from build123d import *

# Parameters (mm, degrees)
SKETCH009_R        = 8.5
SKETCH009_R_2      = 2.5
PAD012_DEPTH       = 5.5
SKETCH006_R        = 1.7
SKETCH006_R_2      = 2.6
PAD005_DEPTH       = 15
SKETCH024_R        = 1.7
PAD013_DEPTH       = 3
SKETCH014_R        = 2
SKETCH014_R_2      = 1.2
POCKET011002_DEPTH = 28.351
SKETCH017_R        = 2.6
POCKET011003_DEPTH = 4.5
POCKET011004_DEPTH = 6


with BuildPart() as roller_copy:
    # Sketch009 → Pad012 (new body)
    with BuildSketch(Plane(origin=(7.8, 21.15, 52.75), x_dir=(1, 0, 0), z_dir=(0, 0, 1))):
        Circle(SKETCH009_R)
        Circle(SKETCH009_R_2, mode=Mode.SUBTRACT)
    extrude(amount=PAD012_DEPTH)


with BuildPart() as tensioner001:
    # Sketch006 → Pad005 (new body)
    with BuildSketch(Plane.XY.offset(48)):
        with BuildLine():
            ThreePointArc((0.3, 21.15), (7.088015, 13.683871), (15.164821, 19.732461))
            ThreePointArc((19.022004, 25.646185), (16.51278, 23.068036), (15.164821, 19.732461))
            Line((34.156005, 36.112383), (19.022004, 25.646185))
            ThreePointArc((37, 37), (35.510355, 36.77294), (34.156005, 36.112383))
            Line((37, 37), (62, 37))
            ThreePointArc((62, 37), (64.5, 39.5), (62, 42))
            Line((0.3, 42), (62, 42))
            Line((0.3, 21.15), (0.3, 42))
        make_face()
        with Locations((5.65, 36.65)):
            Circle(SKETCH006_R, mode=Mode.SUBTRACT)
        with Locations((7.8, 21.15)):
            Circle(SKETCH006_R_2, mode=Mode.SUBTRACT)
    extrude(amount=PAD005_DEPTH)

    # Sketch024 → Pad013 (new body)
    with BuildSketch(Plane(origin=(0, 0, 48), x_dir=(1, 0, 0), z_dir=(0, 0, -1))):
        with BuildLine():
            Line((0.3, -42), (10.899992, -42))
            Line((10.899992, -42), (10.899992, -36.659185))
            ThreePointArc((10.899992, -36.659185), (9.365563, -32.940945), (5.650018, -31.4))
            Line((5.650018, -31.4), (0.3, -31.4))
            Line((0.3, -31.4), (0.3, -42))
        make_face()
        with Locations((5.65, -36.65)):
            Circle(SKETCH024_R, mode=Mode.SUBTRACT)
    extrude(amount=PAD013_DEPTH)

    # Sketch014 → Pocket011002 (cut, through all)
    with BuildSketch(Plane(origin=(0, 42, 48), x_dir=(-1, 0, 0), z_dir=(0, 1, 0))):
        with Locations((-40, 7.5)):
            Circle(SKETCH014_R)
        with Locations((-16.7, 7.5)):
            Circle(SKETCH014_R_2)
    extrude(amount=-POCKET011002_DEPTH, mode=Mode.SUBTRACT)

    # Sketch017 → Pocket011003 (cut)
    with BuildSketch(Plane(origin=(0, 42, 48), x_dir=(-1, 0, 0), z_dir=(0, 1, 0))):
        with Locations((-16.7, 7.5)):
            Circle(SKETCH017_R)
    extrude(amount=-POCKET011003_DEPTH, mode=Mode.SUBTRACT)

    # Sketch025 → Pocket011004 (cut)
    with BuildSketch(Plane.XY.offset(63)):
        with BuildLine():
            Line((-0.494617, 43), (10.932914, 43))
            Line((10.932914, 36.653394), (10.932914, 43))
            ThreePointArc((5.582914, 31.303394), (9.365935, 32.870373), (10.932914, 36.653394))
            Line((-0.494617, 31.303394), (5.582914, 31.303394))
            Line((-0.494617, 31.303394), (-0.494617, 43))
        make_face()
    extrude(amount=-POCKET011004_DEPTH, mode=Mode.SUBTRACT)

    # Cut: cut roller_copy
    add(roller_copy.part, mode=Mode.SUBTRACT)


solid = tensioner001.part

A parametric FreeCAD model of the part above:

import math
import FreeCAD as App
import Part
import Sketcher
Q = App.Units.Quantity

doc = App.newDocument("Part")
body = doc.addObject("PartDesign::Body", "Body")

# Sketch on XY plane
sketch1 = body.newObject("Sketcher::SketchObject", "Sketch")
sketch1.AttachmentSupport = (doc.getObject("XY_Plane"), [""])
sketch1.MapMode = "FlatFace"
sketch1.AttachmentOffset = App.Placement(App.Vector(0, 0, 52.75), App.Rotation())
sketch1.addGeometry([
    Part.Circle(App.Vector(7.8, 21.15, 0), App.Vector(0, 0, 1), 8.5),
    Part.Circle(App.Vector(7.8, 21.15, 0), App.Vector(0, 0, 1), 2.5),
], False)
sketch1.addConstraint([
    Sketcher.Constraint("Coincident", 1, 3, 0, 3),
    Sketcher.Constraint("Diameter", 0, Q("17 mm")),
    Sketcher.Constraint("Diameter", 1, Q("5 mm")),
    Sketcher.Constraint("DistanceX", -1, 1, 0, 3, Q("7.8 mm")),
    Sketcher.Constraint("DistanceY", -1, 1, 0, 3, Q("21.15 mm")),
])
pad1 = body.newObject("PartDesign::Pad", "Pad")
pad1.Profile = sketch1
pad1.Length = 5.5
body2 = doc.addObject("PartDesign::Body", "Body001")

# Sketch on XY plane
sketch2 = body2.newObject("Sketcher::SketchObject", "Sketch001")
sketch2.AttachmentSupport = (doc.getObject("XY_Plane001"), [""])
sketch2.MapMode = "FlatFace"
sketch2.AttachmentOffset = App.Placement(App.Vector(0, 0, 48), App.Rotation())
sketch2.addGeometry([
    Part.ArcOfCircle(Part.Circle(App.Vector(7.8, 21.15, 0), App.Vector(0, 0, 1), 7.5), math.radians(179.999999), math.radians(349.105267)),  # 0
    Part.ArcOfCircle(Part.Circle(App.Vector(24.331985, 17.968017, 0), App.Vector(0, 0, 1), 9.335425), math.radians(124.666524), math.radians(169.105267)),  # 1
    Part.LineSegment(App.Vector(19.022004, 25.646185, 0), App.Vector(34.156005, 36.112383, 0)),  # 2
    Part.ArcOfCircle(Part.Circle(App.Vector(37.000001, 31.999995, 0), App.Vector(0, 0, 1), 5.000005), math.radians(90.000014), math.radians(124.666498)),  # 3
    Part.LineSegment(App.Vector(37, 37, 0), App.Vector(62, 37, 0)),  # 4
    Part.ArcOfCircle(Part.Circle(App.Vector(62, 39.5, 0), App.Vector(0, 0, 1), 2.5), math.radians(-90), math.radians(90)),  # 5
    Part.LineSegment(App.Vector(62, 42, 0), App.Vector(0.3, 42, 0)),  # 6
    Part.LineSegment(App.Vector(0.3, 42, 0), App.Vector(0.3, 21.15, 0)),  # 7
    Part.Circle(App.Vector(7.8, 21.15, 0), App.Vector(0, 0, 1), 2.6),  # 8
    Part.Circle(App.Vector(5.65, 36.65, 0), App.Vector(0, 0, 1), 1.7),  # 9
], False)
sketch2.addConstraint([
    Sketcher.Constraint("Tangent", 0, 2, 1, 2),
    Sketcher.Constraint("Tangent", 1, 1, 2, 1),
    Sketcher.Constraint("Tangent", 2, 2, 3, 2),
    Sketcher.Constraint("Tangent", 3, 1, 4, 1),
    Sketcher.Constraint("Tangent", 4, 2, 5, 1),
    Sketcher.Constraint("Tangent", 5, 2, 6, 1),
    Sketcher.Constraint("Coincident", 6, 2, 7, 1),
    Sketcher.Constraint("Tangent", 7, 2, 0, 1),
    Sketcher.Constraint("Horizontal", 4),
    Sketcher.Constraint("Horizontal", 6),
    Sketcher.Constraint("Vertical", 7),
    Sketcher.Constraint("Coincident", 8, 3, 0, 3),
    Sketcher.Constraint("Diameter", 8, Q("5.2 mm")),
    Sketcher.Constraint("Diameter", 9, Q("3.4 mm")),
    Sketcher.Constraint("Radius", 0, Q("7.5 mm")),
    Sketcher.Constraint("Radius", 5, Q("2.5 mm")),
    Sketcher.Constraint("DistanceX", 4, 1, 4, 2, Q("25 mm")),
    Sketcher.Constraint("DistanceX", 6, 2, 6, 1, Q("61.7 mm")),
    Sketcher.Constraint("DistanceX", -1, 1, 3, 3, Q("37.000001 mm")),
    Sketcher.Constraint("DistanceY", -1, 1, 3, 1, Q("37 mm")),
    Sketcher.Constraint("DistanceY", 7, 2, 7, 1, Q("20.85 mm")),
    Sketcher.Constraint("DistanceY", 8, 3, 9, 3, Q("15.5 mm")),
    Sketcher.Constraint("DistanceX", -1, 1, 9, 3, Q("5.65 mm")),
    Sketcher.Constraint("Radius", 1, Q("9.335425 mm")),
    Sketcher.Constraint("Radius", 3, Q("5.000005 mm")),
    Sketcher.Constraint("DistanceX", 1, 1, 2, 2, Q("15.134001 mm")),
])
pad2 = body2.newObject("PartDesign::Pad", "Pad001")
pad2.Profile = sketch2
pad2.Length = 15

# Sketch on XY plane
sketch3 = body2.newObject("Sketcher::SketchObject", "Sketch002")
sketch3.AttachmentSupport = (doc.getObject("XY_Plane001"), [""])
sketch3.MapMode = "FlatFace"
sketch3.AttachmentOffset = App.Placement(App.Vector(0, 0, 48), App.Rotation())
sketch3.addGeometry([
    Part.LineSegment(App.Vector(0.3, 42, 0), App.Vector(10.899992, 42, 0)),  # 0
    Part.LineSegment(App.Vector(10.899992, 42, 0), App.Vector(10.899992, 36.659185, 0)),  # 1
    Part.ArcOfCircle(Part.Circle(App.Vector(5.649999, 36.650001, 0), App.Vector(0, 0, 1), 5.250001), math.radians(-89.999797), math.radians(0.100233)),  # 2
    Part.LineSegment(App.Vector(5.650018, 31.4, 0), App.Vector(0.3, 31.4, 0)),  # 3
    Part.LineSegment(App.Vector(0.3, 31.4, 0), App.Vector(0.3, 42, 0)),  # 4
    Part.Circle(App.Vector(5.65, 36.65, 0), App.Vector(0, 0, 1), 1.7),  # 5
], False)
sketch3.addConstraint([
    Sketcher.Constraint("Coincident", 0, 2, 1, 1),
    Sketcher.Constraint("Coincident", 1, 2, 2, 2),
    Sketcher.Constraint("Coincident", 2, 1, 3, 1),
    Sketcher.Constraint("Coincident", 3, 2, 4, 1),
    Sketcher.Constraint("Coincident", 4, 2, 0, 1),
    Sketcher.Constraint("Horizontal", 0),
    Sketcher.Constraint("Vertical", 1),
    Sketcher.Constraint("Horizontal", 3),
    Sketcher.Constraint("Vertical", 4),
    Sketcher.Constraint("Coincident", 5, 3, 2, 3),
    Sketcher.Constraint("Diameter", 5, Q("3.4 mm")),
    Sketcher.Constraint("Radius", 2, Q("5.250001 mm")),
    Sketcher.Constraint("DistanceY", 4, 1, 4, 2, Q("10.6 mm")),
    Sketcher.Constraint("DistanceY", -1, 1, 0, 2, Q("42 mm")),
    Sketcher.Constraint("DistanceX", -1, 1, 3, 2, Q("0.3 mm")),
    Sketcher.Constraint("DistanceX", -1, 1, 2, 3, Q("5.649999 mm")),
    Sketcher.Constraint("DistanceX", 3, 2, 3, 1, Q("5.350018 mm")),
    Sketcher.Constraint("DistanceY", 1, 2, 1, 1, Q("5.340815 mm")),
])
pad3 = body2.newObject("PartDesign::Pad", "Pad002")
pad3.Profile = sketch3
pad3.Length = 3
pad3.Reversed = True

# Sketch on XZ plane
sketch4 = body2.newObject("Sketcher::SketchObject", "Sketch003")
sketch4.AttachmentSupport = (doc.getObject("XZ_Plane001"), [""])
sketch4.MapMode = "FlatFace"
sketch4.AttachmentOffset = App.Placement(App.Vector(0, 0, -42), App.Rotation())
sketch4.addGeometry([
    Part.Circle(App.Vector(40, 55.5, 0), App.Vector(0, 0, 1), 2),
    Part.Circle(App.Vector(16.7, 55.5, 0), App.Vector(0, 0, 1), 1.2),
], False)
sketch4.addConstraint([
    Sketcher.Constraint("Horizontal", 0, 3, 1, 3),
    Sketcher.Constraint("Diameter", 0, Q("4 mm")),
    Sketcher.Constraint("Diameter", 1, Q("2.4 mm")),
    Sketcher.Constraint("DistanceX", -1, 1, 0, 3, Q("40 mm")),
    Sketcher.Constraint("DistanceY", -1, 1, 0, 3, Q("55.5 mm")),
    Sketcher.Constraint("DistanceX", -1, 1, 1, 3, Q("16.7 mm")),
])
pocket1 = body2.newObject("PartDesign::Pocket", "Pocket")
pocket1.Profile = sketch4
pocket1.Type = "ThroughAll"
pocket1.Reversed = True

# Sketch on XZ plane
sketch5 = body2.newObject("Sketcher::SketchObject", "Sketch004")
sketch5.AttachmentSupport = (doc.getObject("XZ_Plane001"), [""])
sketch5.MapMode = "FlatFace"
sketch5.AttachmentOffset = App.Placement(App.Vector(0, 0, -42), App.Rotation())
sketch5.addGeometry(Part.Circle(App.Vector(16.7, 55.5, 0), App.Vector(0, 0, 1), 2.6), False)
sketch5.addConstraint([
    Sketcher.Constraint("Diameter", 0, Q("5.2 mm")),
    Sketcher.Constraint("DistanceX", -1, 1, 0, 3, Q("16.7 mm")),
    Sketcher.Constraint("DistanceY", -1, 1, 0, 3, Q("55.5 mm")),
])
pocket2 = body2.newObject("PartDesign::Pocket", "Pocket001")
pocket2.Profile = sketch5
pocket2.Length = 4.5
pocket2.Reversed = True

# Sketch on XY plane
sketch6 = body2.newObject("Sketcher::SketchObject", "Sketch005")
sketch6.AttachmentSupport = (doc.getObject("XY_Plane001"), [""])
sketch6.MapMode = "FlatFace"
sketch6.AttachmentOffset = App.Placement(App.Vector(0, 0, 63), App.Rotation())
sketch6.addGeometry([
    Part.LineSegment(App.Vector(10.932914, 43, 0), App.Vector(-0.494617, 43, 0)),  # 0
    Part.LineSegment(App.Vector(-0.494617, 43, 0), App.Vector(-0.494617, 31.303394, 0)),  # 1
    Part.LineSegment(App.Vector(-0.494617, 31.303394, 0), App.Vector(5.582914, 31.303394, 0)),  # 2
    Part.ArcOfCircle(Part.Circle(App.Vector(5.582913, 36.653395, 0), App.Vector(0, 0, 1), 5.350001), math.radians(-89.99999), math.radians(-0.00001)),  # 3
    Part.LineSegment(App.Vector(10.932914, 36.653394, 0), App.Vector(10.932914, 43, 0)),  # 4
], False)
sketch6.addConstraint([
    Sketcher.Constraint("Coincident", 0, 2, 1, 1),
    Sketcher.Constraint("Coincident", 1, 2, 2, 1),
    Sketcher.Constraint("Tangent", 2, 2, 3, 1),
    Sketcher.Constraint("Tangent", 3, 2, 4, 1),
    Sketcher.Constraint("Coincident", 4, 2, 0, 1),
    Sketcher.Constraint("Horizontal", 0),
    Sketcher.Constraint("Vertical", 1),
    Sketcher.Constraint("Horizontal", 2),
    Sketcher.Constraint("Vertical", 4),
    Sketcher.Constraint("Radius", 3, Q("5.350001 mm")),
    Sketcher.Constraint("DistanceY", -1, 1, 0, 2, Q("43 mm")),
    Sketcher.Constraint("DistanceX", 0, 2, 0, 1, Q("11.427531 mm")),
    Sketcher.Constraint("DistanceY", 1, 2, 1, 1, Q("11.696606 mm")),
    Sketcher.Constraint("DistanceX", -1, 1, 3, 3, Q("5.582913 mm")),
])
pocket3 = body2.newObject("PartDesign::Pocket", "Pocket002")
pocket3.Profile = sketch6
pocket3.Length = 6
doc.recompute()

boolean = body2.newObject("PartDesign::Boolean", "Boolean")
boolean.Type = "Cut"
boolean.addObjects([body])

doc.recompute()
